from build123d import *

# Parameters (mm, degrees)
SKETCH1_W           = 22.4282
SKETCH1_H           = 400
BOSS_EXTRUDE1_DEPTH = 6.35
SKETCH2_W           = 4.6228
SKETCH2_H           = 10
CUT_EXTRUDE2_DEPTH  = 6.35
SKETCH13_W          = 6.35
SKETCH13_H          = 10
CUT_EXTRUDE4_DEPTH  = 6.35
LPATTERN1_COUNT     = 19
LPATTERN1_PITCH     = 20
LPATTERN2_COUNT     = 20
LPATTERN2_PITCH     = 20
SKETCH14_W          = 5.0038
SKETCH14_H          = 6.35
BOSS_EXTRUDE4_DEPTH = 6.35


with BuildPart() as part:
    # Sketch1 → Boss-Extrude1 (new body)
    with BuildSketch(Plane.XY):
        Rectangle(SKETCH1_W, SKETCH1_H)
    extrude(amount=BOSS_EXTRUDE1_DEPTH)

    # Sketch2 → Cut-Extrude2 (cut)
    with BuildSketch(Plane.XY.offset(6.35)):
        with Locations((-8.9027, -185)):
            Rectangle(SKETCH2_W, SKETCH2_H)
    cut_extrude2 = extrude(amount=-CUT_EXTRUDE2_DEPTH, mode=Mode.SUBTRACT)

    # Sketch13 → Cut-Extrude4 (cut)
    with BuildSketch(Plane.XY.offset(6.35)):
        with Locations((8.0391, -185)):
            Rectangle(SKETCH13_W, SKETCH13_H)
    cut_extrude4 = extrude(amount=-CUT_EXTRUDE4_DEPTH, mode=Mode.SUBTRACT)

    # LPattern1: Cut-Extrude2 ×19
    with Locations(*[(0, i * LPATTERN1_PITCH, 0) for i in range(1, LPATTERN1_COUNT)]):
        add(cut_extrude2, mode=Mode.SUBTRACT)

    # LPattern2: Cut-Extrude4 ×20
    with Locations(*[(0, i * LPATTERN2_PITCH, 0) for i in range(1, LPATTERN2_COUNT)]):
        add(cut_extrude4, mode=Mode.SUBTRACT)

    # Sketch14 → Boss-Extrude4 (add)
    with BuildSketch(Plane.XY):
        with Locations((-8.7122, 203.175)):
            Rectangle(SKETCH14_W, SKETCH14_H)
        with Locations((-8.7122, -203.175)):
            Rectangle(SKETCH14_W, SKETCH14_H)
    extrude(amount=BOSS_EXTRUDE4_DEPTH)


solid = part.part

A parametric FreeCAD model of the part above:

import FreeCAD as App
import Part
import Sketcher

V = App.Vector
Q = App.Units.Quantity

doc = App.newDocument("Part")
body = doc.addObject("PartDesign::Body", "Body")

# Sketch on XY plane
sketch1 = body.newObject("Sketcher::SketchObject", "Sketch")
sketch1.AttachmentSupport = (doc.getObject("XY_Plane"), [""])
sketch1.MapMode = "FlatFace"
sketch1.addGeometry(Part.LineSegment(V(-11, 200, 0), V(-11, -200, 0)), False)
sketch1.addGeometry(Part.LineSegment(V(-11, -200, 0), V(11, -200, 0)), False)
sketch1.addGeometry(Part.LineSegment(V(11, -200, 0), V(11, 200, 0)), False)
sketch1.addGeometry(Part.LineSegment(V(11, 200, 0), V(-11, 200, 0)), False)
sketch1.addConstraint(Sketcher.Constraint("Coincident", 0, 2, 1, 1))
sketch1.addConstraint(Sketcher.Constraint("Coincident", 1, 2, 2, 1))
sketch1.addConstraint(Sketcher.Constraint("Coincident", 2, 2, 3, 1))
sketch1.addConstraint(Sketcher.Constraint("Coincident", 3, 2, 0, 1))
sketch1.addConstraint(Sketcher.Constraint("Vertical", 0))
sketch1.addConstraint(Sketcher.Constraint("Horizontal", 1))
sketch1.addConstraint(Sketcher.Constraint("Vertical", 2))
sketch1.addConstraint(Sketcher.Constraint("Horizontal", 3))
sketch1.addConstraint(Sketcher.Constraint("Symmetric", 0, 2, 2, 2, -1, 1))
sketch1.addConstraint(Sketcher.Constraint("DistanceX", 1, 1, 1, 2, Q("0.883 in")))
sketch1.addConstraint(Sketcher.Constraint("DistanceY", 0, 2, 0, 1, Q("400 mm")))
pad1 = body.newObject("PartDesign::Pad", "Pad")
pad1.Profile = sketch1
pad1.Length = Q("0.25 in")

# Sketch on XY plane
sketch2 = body.newObject("Sketcher::SketchObject", "Sketch001")
sketch2.AttachmentSupport = (doc.getObject("XY_Plane"), [""])
sketch2.MapMode = "FlatFace"
sketch2.AttachmentOffset = App.Placement(V(0, 0, 0.25 * 25.4), App.Rotation())
sketch2.addGeometry(Part.LineSegment(V(-11.2, -180, 0), V(-11.2, -190, 0)), False)
sketch2.addGeometry(Part.LineSegment(V(-11.2, -190, 0), V(-6.6, -190, 0)), False)
sketch2.addGeometry(Part.LineSegment(V(-6.6, -190, 0), V(-6.6, -180, 0)), False)
sketch2.addGeometry(Part.LineSegment(V(-6.6, -180, 0), V(-11.2, -180, 0)), False)
sketch2.addConstraint(Sketcher.Constraint("Coincident", 0, 2, 1, 1))
sketch2.addConstraint(Sketcher.Constraint("Coincident", 1, 2, 2, 1))
sketch2.addConstraint(Sketcher.Constraint("Coincident", 2, 2, 3, 1))
sketch2.addConstraint(Sketcher.Constraint("Coincident", 3, 2, 0, 1))
sketch2.addConstraint(Sketcher.Constraint("Vertical", 0))
sketch2.addConstraint(Sketcher.Constraint("Horizontal", 1))
sketch2.addConstraint(Sketcher.Constraint("Vertical", 2))
sketch2.addConstraint(Sketcher.Constraint("Horizontal", 3))
sketch2.addConstraint(Sketcher.Constraint("DistanceX", 1, 1, 1, 2, Q("0.182 in")))
sketch2.addConstraint(Sketcher.Constraint("DistanceY", 0, 2, 0, 1, Q("10 mm")))
sketch2.addConstraint(Sketcher.Constraint("DistanceX", 0, 2, -1, 1, Q("0.4415 in")))
sketch2.addConstraint(Sketcher.Constraint("DistanceY", 0, 2, -1, 1, Q("190 mm")))
pocket1 = body.newObject("PartDesign::Pocket", "Pocket")
pocket1.Profile = sketch2
pocket1.Length = Q("0.25 in")

# Sketch on XY plane
sketch3 = body.newObject("Sketcher::SketchObject", "Sketch002")
sketch3.AttachmentSupport = (doc.getObject("XY_Plane"), [""])
sketch3.MapMode = "FlatFace"
sketch3.AttachmentOffset = App.Placement(V(0, 0, 0.25 * 25.4), App.Rotation())
sketch3.addGeometry(Part.LineSegment(V(5, -180, 0), V(5, -190, 0)), False)
sketch3.addGeometry(Part.LineSegment(V(5, -190, 0), V(11, -190, 0)), False)
sketch3.addGeometry(Part.LineSegment(V(11, -190, 0), V(11, -180, 0)), False)
sketch3.addGeometry(Part.LineSegment(V(11, -180, 0), V(5, -180, 0)), False)
sketch3.addConstraint(Sketcher.Constraint("Coincident", 0, 2, 1, 1))
sketch3.addConstraint(Sketcher.Constraint("Coincident", 1, 2, 2, 1))
sketch3.addConstraint(Sketcher.Constraint("Coincident", 2, 2, 3, 1))
sketch3.addConstraint(Sketcher.Constraint("Coincident", 3, 2, 0, 1))
sketch3.addConstraint(Sketcher.Constraint("Vertical", 0))
sketch3.addConstraint(Sketcher.Constraint("Horizontal", 1))
sketch3.addConstraint(Sketcher.Constraint("Vertical", 2))
sketch3.addConstraint(Sketcher.Constraint("Horizontal", 3))
sketch3.addConstraint(Sketcher.Constraint("DistanceX", 1, 1, 1, 2, Q("0.25 in")))
sketch3.addConstraint(Sketcher.Constraint("DistanceY", 0, 2, 0, 1, Q("10 mm")))
sketch3.addConstraint(Sketcher.Constraint("DistanceX", -1, 1, 0, 2, Q("0.1915 in")))
sketch3.addConstraint(Sketcher.Constraint("DistanceY", 0, 2, -1, 1, Q("190 mm")))
pocket2 = body.newObject("PartDesign::Pocket", "Pocket001")
pocket2.Profile = sketch3
pocket2.Length = Q("0.25 in")
doc.recompute()

linearpattern = body.newObject("PartDesign::LinearPattern", "LinearPattern")
linearpattern.Originals = [pocket1]
linearpattern.Direction = (doc.getObject("Y_Axis"), [""])
linearpattern.Mode = "offset"
linearpattern.Offset = 20
linearpattern.Occurrences = 19
body.Tip = linearpattern
doc.recompute()

linearpattern2 = body.newObject("PartDesign::LinearPattern", "LinearPattern001")
linearpattern2.Originals = [pocket2]
linearpattern2.Direction = (doc.getObject("Y_Axis"), [""])
linearpattern2.Mode = "offset"
linearpattern2.Offset = 20
linearpattern2.Occurrences = 20
body.Tip = linearpattern2

# Sketch on XY plane
sketch4 = body.newObject("Sketcher::SketchObject", "Sketch003")
sketch4.AttachmentSupport = (doc.getObject("XY_Plane"), [""])
sketch4.MapMode = "FlatFace"
sketch4.addGeometry(Part.LineSegment(V(-11, 206, 0), V(-11, 200, 0)), False)
sketch4.addGeometry(Part.LineSegment(V(-11, 200, 0), V(-6, 200, 0)), False)
sketch4.addGeometry(Part.LineSegment(V(-6, 200, 0), V(-6, 206, 0)), False)
sketch4.addGeometry(Part.LineSegment(V(-6, 206, 0), V(-11, 206, 0)), False)
sketch4.addGeometry(Part.LineSegment(V(-11, -200, 0), V(-11, -206, 0)), False)
sketch4.addGeometry(Part.LineSegment(V(-11, -206, 0), V(-6, -206, 0)), False)
sketch4.addGeometry(Part.LineSegment(V(-6, -206, 0), V(-6, -200, 0)), False)
sketch4.addGeometry(Part.LineSegment(V(-6, -200, 0), V(-11, -200, 0)), False)
sketch4.addConstraint(Sketcher.Constraint("Coincident", 0, 2, 1, 1))
sketch4.addConstraint(Sketcher.Constraint("Coincident", 1, 2, 2, 1))
sketch4.addConstraint(Sketcher.Constraint("Coincident", 2, 2, 3, 1))
sketch4.addConstraint(Sketcher.Constraint("Coincident", 3, 2, 0, 1))
sketch4.addConstraint(Sketcher.Constraint("Coincident", 4, 2, 5, 1))
sketch4.addConstraint(Sketcher.Constraint("Coincident", 5, 2, 6, 1))
sketch4.addConstraint(Sketcher.Constraint("Coincident", 6, 2, 7, 1))
sketch4.addConstraint(Sketcher.Constraint("Coincident", 7, 2, 4, 1))
sketch4.addConstraint(Sketcher.Constraint("Vertical", 0))
sketch4.addConstraint(Sketcher.Constraint("Horizontal", 1))
sketch4.addConstraint(Sketcher.Constraint("Vertical", 2))
sketch4.addConstraint(Sketcher.Constraint("Horizontal", 3))
sketch4.addConstraint(Sketcher.Constraint("Vertical", 4))
sketch4.addConstraint(Sketcher.Constraint("Horizontal", 5))
sketch4.addConstraint(Sketcher.Constraint("Vertical", 6))
sketch4.addConstraint(Sketcher.Constraint("Horizontal", 7))
sketch4.addConstraint(Sketcher.Constraint("Symmetric", 3, 2, 4, 2, -1))
sketch4.addConstraint(Sketcher.Constraint("Symmetric", 1, 2, 6, 2, -1))
sketch4.addConstraint(Sketcher.Constraint("DistanceY", 0, 2, 0, 1, Q("0.25 in")))
sketch4.addConstraint(Sketcher.Constraint("DistanceX", 1, 1, 1, 2, Q("0.197 in")))
sketch4.addConstraint(Sketcher.Constraint("DistanceX", 0, 2, -1, 1, Q("0.4415 in")))
sketch4.addConstraint(Sketcher.Constraint("DistanceY", -1, 1, 0, 2, Q("200 mm")))
pad2 = body.newObject("PartDesign::Pad", "Pad001")
pad2.Profile = sketch4
pad2.Length = Q("0.25 in")

doc.recompute()
